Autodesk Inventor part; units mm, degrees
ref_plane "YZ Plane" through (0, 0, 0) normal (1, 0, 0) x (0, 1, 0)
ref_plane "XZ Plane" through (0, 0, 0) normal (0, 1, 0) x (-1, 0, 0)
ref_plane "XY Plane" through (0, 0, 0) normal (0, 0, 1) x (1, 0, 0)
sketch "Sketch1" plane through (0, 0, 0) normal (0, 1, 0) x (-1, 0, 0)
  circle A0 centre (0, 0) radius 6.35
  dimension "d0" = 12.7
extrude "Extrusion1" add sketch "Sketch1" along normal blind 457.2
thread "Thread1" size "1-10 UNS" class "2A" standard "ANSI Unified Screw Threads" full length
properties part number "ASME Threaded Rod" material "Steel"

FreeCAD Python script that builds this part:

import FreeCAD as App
import Part
import Sketcher

V = App.Vector
Q = App.Units.Quantity

doc = App.newDocument("Part")
body = doc.addObject("PartDesign::Body", "Body")

# Sketch on XZ plane
sketch1 = body.newObject("Sketcher::SketchObject", "Sketch")
sketch1.AttachmentSupport = (doc.getObject("XZ_Plane"), [""])
sketch1.MapMode = "FlatFace"
sketch1.addGeometry(Part.Circle(V(0, 0, 0), V(0, 0, 1), 6), False)
sketch1.addConstraint(Sketcher.Constraint("Coincident", 0, 3, -1, 1))
sketch1.addConstraint(Sketcher.Constraint("Diameter", 0, Q("0.5 in")))
pad1 = body.newObject("PartDesign::Pad", "Pad")
pad1.Profile = sketch1
pad1.Length = Q("18 in")
pad1.Reversed = True

doc.recompute()
